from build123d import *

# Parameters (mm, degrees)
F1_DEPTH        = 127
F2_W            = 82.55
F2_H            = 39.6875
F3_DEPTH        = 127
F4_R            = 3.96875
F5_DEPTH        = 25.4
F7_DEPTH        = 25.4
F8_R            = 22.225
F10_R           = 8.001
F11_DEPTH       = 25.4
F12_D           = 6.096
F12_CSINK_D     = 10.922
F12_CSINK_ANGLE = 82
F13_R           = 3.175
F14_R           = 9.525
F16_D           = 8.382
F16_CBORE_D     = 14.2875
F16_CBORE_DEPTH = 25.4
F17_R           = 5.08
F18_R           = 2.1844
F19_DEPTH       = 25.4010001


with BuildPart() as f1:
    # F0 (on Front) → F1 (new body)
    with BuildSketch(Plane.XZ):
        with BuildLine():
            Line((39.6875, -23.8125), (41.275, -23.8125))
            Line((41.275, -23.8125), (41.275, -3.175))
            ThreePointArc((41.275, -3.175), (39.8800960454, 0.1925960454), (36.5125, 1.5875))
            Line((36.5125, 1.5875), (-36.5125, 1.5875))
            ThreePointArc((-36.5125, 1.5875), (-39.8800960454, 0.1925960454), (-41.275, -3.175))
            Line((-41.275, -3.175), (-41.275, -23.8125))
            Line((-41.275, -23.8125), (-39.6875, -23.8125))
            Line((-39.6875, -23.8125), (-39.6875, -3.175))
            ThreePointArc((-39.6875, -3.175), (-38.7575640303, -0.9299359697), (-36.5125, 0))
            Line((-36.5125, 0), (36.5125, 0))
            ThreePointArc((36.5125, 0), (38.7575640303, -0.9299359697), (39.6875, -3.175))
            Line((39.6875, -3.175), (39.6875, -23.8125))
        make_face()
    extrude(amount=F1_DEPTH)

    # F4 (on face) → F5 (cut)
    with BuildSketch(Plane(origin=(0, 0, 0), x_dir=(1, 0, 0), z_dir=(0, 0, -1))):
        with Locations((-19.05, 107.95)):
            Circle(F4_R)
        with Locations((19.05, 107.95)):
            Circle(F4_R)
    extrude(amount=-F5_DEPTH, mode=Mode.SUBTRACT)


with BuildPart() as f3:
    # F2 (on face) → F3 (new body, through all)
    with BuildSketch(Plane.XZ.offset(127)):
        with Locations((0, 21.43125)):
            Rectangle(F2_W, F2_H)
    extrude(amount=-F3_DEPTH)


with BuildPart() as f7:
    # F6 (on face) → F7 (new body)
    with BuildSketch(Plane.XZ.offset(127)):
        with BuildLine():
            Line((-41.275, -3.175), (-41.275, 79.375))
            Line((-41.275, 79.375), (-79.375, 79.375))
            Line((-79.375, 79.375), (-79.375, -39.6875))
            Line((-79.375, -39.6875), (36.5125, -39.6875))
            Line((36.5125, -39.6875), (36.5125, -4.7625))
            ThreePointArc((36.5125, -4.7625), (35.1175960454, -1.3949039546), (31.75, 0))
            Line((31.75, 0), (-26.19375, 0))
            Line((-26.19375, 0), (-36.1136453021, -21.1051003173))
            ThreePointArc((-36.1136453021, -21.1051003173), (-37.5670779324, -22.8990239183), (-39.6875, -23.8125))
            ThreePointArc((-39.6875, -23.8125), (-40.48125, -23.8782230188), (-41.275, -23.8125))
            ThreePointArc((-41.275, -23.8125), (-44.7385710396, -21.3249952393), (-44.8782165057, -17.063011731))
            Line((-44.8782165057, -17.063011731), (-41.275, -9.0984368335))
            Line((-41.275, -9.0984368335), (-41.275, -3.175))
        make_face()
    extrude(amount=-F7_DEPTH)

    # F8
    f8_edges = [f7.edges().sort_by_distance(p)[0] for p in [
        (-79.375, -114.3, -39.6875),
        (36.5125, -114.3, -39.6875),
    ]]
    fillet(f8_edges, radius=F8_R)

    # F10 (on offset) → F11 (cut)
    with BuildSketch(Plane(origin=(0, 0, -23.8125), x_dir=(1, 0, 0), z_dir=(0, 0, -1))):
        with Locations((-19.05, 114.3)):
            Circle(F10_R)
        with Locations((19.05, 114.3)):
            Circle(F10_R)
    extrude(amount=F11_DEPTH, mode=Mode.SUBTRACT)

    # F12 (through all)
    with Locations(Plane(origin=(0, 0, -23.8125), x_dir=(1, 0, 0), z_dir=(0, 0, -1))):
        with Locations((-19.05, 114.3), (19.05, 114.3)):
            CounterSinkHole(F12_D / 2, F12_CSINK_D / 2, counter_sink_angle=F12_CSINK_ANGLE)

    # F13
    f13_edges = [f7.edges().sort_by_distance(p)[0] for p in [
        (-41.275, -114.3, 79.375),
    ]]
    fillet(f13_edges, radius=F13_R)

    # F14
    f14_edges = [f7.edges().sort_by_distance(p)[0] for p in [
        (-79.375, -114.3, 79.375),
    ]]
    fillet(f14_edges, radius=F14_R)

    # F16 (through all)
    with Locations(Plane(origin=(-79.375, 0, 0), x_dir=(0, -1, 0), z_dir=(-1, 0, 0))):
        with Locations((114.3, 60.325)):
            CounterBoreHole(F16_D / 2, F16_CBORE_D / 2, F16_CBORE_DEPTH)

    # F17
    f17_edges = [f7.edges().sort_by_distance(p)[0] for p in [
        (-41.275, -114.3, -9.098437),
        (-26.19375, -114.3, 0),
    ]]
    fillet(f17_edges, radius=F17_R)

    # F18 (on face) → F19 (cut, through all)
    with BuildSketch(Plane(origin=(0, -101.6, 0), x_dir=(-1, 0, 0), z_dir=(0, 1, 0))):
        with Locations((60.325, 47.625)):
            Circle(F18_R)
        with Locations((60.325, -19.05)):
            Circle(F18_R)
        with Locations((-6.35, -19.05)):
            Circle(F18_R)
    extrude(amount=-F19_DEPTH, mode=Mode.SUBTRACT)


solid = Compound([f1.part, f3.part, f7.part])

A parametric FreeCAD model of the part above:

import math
import FreeCAD as App
import Part
import Sketcher
from FreeCAD import Vector
Q = App.Units.Quantity


def edges_at(feature, points):
    """Names of the edges that pass closest to the given points."""
    edges = feature.Shape.Edges
    near = lambda p: min(range(len(edges)), key=lambda i: edges[i].distToShape(Part.Vertex(*p))[0])
    return sorted({f"Edge{near(p) + 1}" for p in points})


def add_polygon(sketch, points):
    """Adds a closed chain of lines whose ends are joined by coincident constraints."""
    first, n = sketch.GeometryCount, len(points)
    for a, b in zip(points, points[1:] + points[:1]):
        sketch.addGeometry(Part.LineSegment(App.Vector(*a, 0), App.Vector(*b, 0)), False)
    for i in range(n):
        sketch.addConstraint(Sketcher.Constraint("Coincident", first + i, 2, first + (i + 1) % n, 1))

doc = App.newDocument("Part")
body = doc.addObject("PartDesign::Body", "Body")

# Sketch on XZ plane
sketch1 = doc.addObject("Sketcher::SketchObject", "Sketch")
body.addObject(sketch1)
sketch1.AttachmentSupport = (doc.XZ_Plane, [""])
sketch1.MapMode = "FlatFace"
sketch1.addGeometry([
    Part.LineSegment(Vector(39.7, -23.8, 0), Vector(41.3, -23.8, 0)),  # 0
    Part.LineSegment(Vector(41.3, -23.8, 0), Vector(41.3, -3.2, 0)),  # 1
    Part.ArcOfCircle(Part.Circle(Vector(36.5, -3.2, 0), Vector(0, 0, 1), 4.8), math.radians(0), math.radians(90)),  # 2
    Part.LineSegment(Vector(36.5, 1.6, 0), Vector(-36.5, 1.6, 0)),  # 3
    Part.ArcOfCircle(Part.Circle(Vector(-36.5, -3.2, 0), Vector(0, 0, 1), 4.8), math.radians(90), math.radians(180)),  # 4
    Part.LineSegment(Vector(-41.3, -3.2, 0), Vector(-41.3, -23.8, 0)),  # 5
    Part.LineSegment(Vector(-41.3, -23.8, 0), Vector(-39.7, -23.8, 0)),  # 6
    Part.LineSegment(Vector(-39.7, -23.8, 0), Vector(-39.7, -3.2, 0)),  # 7
    Part.ArcOfCircle(Part.Circle(Vector(-36.5, -3.2, 0), Vector(0, 0, 1), 3.2), math.radians(90), math.radians(180)),  # 8
    Part.LineSegment(Vector(-36.5, 0, 0), Vector(36.5, 0, 0)),  # 9
    Part.ArcOfCircle(Part.Circle(Vector(36.5, -3.2, 0), Vector(0, 0, 1), 3.2), math.radians(0), math.radians(90)),  # 10
    Part.LineSegment(Vector(39.7, -3.2, 0), Vector(39.7, -23.8, 0)),  # 11
], False)
sketch1.addConstraint([
    Sketcher.Constraint("Coincident", 0, 2, 1, 1),
    Sketcher.Constraint("Tangent", 1, 2, 2, 1),
    Sketcher.Constraint("Tangent", 2, 2, 3, 1),
    Sketcher.Constraint("Tangent", 3, 2, 4, 1),
    Sketcher.Constraint("Tangent", 4, 2, 5, 1),
    Sketcher.Constraint("Coincident", 5, 2, 6, 1),
    Sketcher.Constraint("Coincident", 6, 2, 7, 1),
    Sketcher.Constraint("Tangent", 7, 2, 8, 2),
    Sketcher.Constraint("Tangent", 8, 1, 9, 1),
    Sketcher.Constraint("Tangent", 9, 2, 10, 2),
    Sketcher.Constraint("Tangent", 10, 1, 11, 1),
    Sketcher.Constraint("Coincident", 11, 2, 0, 1),
    Sketcher.Constraint("Horizontal", 0),
    Sketcher.Constraint("Vertical", 1),
    Sketcher.Constraint("Horizontal", 3),
    Sketcher.Constraint("Vertical", 5),
    Sketcher.Constraint("Horizontal", 6),
    Sketcher.Constraint("Vertical", 7),
    Sketcher.Constraint("Horizontal", 9),
    Sketcher.Constraint("Vertical", 11),
    Sketcher.Constraint("Coincident", 8, 3, 4, 3),
    Sketcher.Constraint("Coincident", 10, 3, 2, 3),
    Sketcher.Constraint("Equal", 2, 4),
    Sketcher.Constraint("Symmetric", 8, 1, 9, 2, -1, 1),
    Sketcher.Constraint("Horizontal", 0, 2, 5, 2),
    Sketcher.Constraint("Radius", 2, Q("0.1875 in")),
    Sketcher.Constraint("Radius", 8, Q("0.125 in")),
    Sketcher.Constraint("DistanceY", 0, 2, 2, 2, Q("1 in")),
    Sketcher.Constraint("DistanceX", 3, 2, 3, 1, Q("2.875 in")),
])
pad1 = doc.addObject("PartDesign::Pad", "Pad")
body.addObject(pad1)
pad1.Profile = sketch1
pad1.Length = Q("5 in")

# Sketch on XY plane
sketch2 = doc.addObject("Sketcher::SketchObject", "Sketch001")
body.addObject(sketch2)
sketch2.AttachmentSupport = (doc.XY_Plane, [""])
sketch2.MapMode = "FlatFace"
sketch2.addGeometry([
    Part.Circle(Vector(-19.1, -108, 0), Vector(0, 0, 1), 4),
    Part.Circle(Vector(19.1, -108, 0), Vector(0, 0, 1), 4),
], False)
sketch2.addConstraint([
    Sketcher.Constraint("Equal", 0, 1),
    Sketcher.Constraint("Symmetric", 0, 3, 1, 3, -2),
    Sketcher.Constraint("Diameter", 0, Q("0.3125 in")),
    Sketcher.Constraint("DistanceX", 0, 3, 1, 3, Q("1.5 in")),
    Sketcher.Constraint("DistanceY", 0, 3, -1, 1, Q("4.25 in")),
])
pocket1 = doc.addObject("PartDesign::Pocket", "Pocket")
body.addObject(pocket1)
pocket1.Profile = sketch2
pocket1.Length = Q("1 in")
pocket1.Reversed = True
body2 = doc.addObject("PartDesign::Body", "Body001")

# Sketch on XZ plane
sketch3 = doc.addObject("Sketcher::SketchObject", "Sketch002")
body2.addObject(sketch3)
sketch3.AttachmentSupport = (doc.getObject("XZ_Plane001"), [""])
sketch3.MapMode = "FlatFace"
sketch3.AttachmentOffset = App.Placement(Vector(0, 0, 5 * 25.4), App.Rotation())
add_polygon(sketch3, [(-41, 41), (-41, 2), (41, 2), (41, 41)])  # lines 0-3
sketch3.addConstraint([
    Sketcher.Constraint("Vertical", 0),
    Sketcher.Constraint("Horizontal", 1),
    Sketcher.Constraint("Vertical", 2),
    Sketcher.Constraint("Horizontal", 3),
    Sketcher.Constraint("DistanceX", 1, 1, 1, 2, Q("3.25 in")),
    Sketcher.Constraint("DistanceY", 0, 2, 0, 1, Q("1.5625 in")),
    Sketcher.Constraint("DistanceX", 0, 2, -1, 1, Q("1.625 in")),
    Sketcher.Constraint("DistanceY", -1, 1, 0, 2, Q("0.0625 in")),
])
pad2 = doc.addObject("PartDesign::Pad", "Pad001")
body2.addObject(pad2)
pad2.Profile = sketch3
pad2.Length = Q("5 in")
pad2.Reversed = True
body3 = doc.addObject("PartDesign::Body", "Body002")

# Sketch on XZ plane
sketch4 = doc.addObject("Sketcher::SketchObject", "Sketch003")
body3.addObject(sketch4)
sketch4.AttachmentSupport = (doc.getObject("XZ_Plane002"), [""])
sketch4.MapMode = "FlatFace"
sketch4.AttachmentOffset = App.Placement(Vector(0, 0, 5 * 25.4), App.Rotation())
sketch4.addGeometry([
    Part.LineSegment(Vector(-41.3, 79.4, 0), Vector(-79.4, 79.4, 0)),  # 0
    Part.LineSegment(Vector(-79.4, 79.4, 0), Vector(-79.4, -39.7, 0)),  # 1
    Part.LineSegment(Vector(-79.4, -39.7, 0), Vector(36.5, -39.7, 0)),  # 2
    Part.LineSegment(Vector(36.5, -39.7, 0), Vector(36.5, -4.8, 0)),  # 3
    Part.ArcOfCircle(Part.Circle(Vector(31.8, -4.8, 0), Vector(0, 0, 1), 4.8), math.radians(0), math.radians(90)),  # 4
    Part.LineSegment(Vector(31.8, 0, 0), Vector(-26.2, 0, 0)),  # 5
    Part.LineSegment(Vector(-26.2, 0, 0), Vector(-36.1, -21.1, 0)),  # 6
    Part.ArcOfCircle(Part.Circle(Vector(-40.5, -19.1, 0), Vector(0, 0, 1), 4.8), math.radians(-81), math.radians(-25)),  # 7
    Part.ArcOfCircle(Part.Circle(Vector(-40.5, -19.1, 0), Vector(0, 0, 1), 4.8), math.radians(-99.47), math.radians(-80.53)),  # 8
    Part.ArcOfCircle(Part.Circle(Vector(-40.5, -19.1, 0), Vector(0, 0, 1), 4.8), math.radians(156), math.radians(261)),  # 9
    Part.LineSegment(Vector(-44.9, -17.1, 0), Vector(-41.3, -9.1, 0)),  # 10
    Part.LineSegment(Vector(-41.3, -9.1, 0), Vector(-41.3, 79.4, 0)),  # 11
], False)
sketch4.addConstraint([
    Sketcher.Constraint("Coincident", 0, 2, 1, 1),
    Sketcher.Constraint("Coincident", 1, 2, 2, 1),
    Sketcher.Constraint("Coincident", 2, 2, 3, 1),
    Sketcher.Constraint("Tangent", 3, 2, 4, 1),
    Sketcher.Constraint("Tangent", 4, 2, 5, 1),
    Sketcher.Constraint("Coincident", 5, 2, 6, 1),
    Sketcher.Constraint("Tangent", 6, 2, 7, 2),
    Sketcher.Constraint("Tangent", 7, 1, 8, 2),
    Sketcher.Constraint("Tangent", 8, 1, 9, 2),
    Sketcher.Constraint("Tangent", 9, 1, 10, 1),
    Sketcher.Constraint("Coincident", 10, 2, 11, 1),
    Sketcher.Constraint("Coincident", 11, 2, 0, 1),
    Sketcher.Constraint("Horizontal", 0),
    Sketcher.Constraint("Vertical", 1),
    Sketcher.Constraint("Horizontal", 2),
    Sketcher.Constraint("Vertical", 3),
    Sketcher.Constraint("Horizontal", 5),
    Sketcher.Constraint("Vertical", 11),
    Sketcher.Constraint("Coincident", 9, 3, 7, 3),
    Sketcher.Constraint("PointOnObject", 4, 2, -1),
    Sketcher.Constraint("Horizontal", 7, 1, 8, 1),
    Sketcher.Constraint("Vertical", 8, 1, 10, 2),
    Sketcher.Constraint("Radius", 7, Q("0.19 in")),
    Sketcher.Constraint("DistanceX", 0, 2, 0, 1, Q("1.5 in")),
    Sketcher.Constraint("Radius", 4, Q("0.1875 in")),
    Sketcher.Constraint("DistanceX", 2, 1, 2, 2, Q("4.5625 in")),
    Sketcher.Constraint("DistanceX", 5, 2, 5, 1, Q("2.28125 in")),
    Sketcher.Constraint("DistanceY", 1, 2, 1, 1, Q("4.6875 in")),
    Sketcher.Constraint("DistanceY", 3, 1, 3, 2, Q("1.375 in")),
    Sketcher.Constraint("DistanceX", -1, 1, 4, 3, Q("1.25 in")),
    Sketcher.Constraint("DistanceX", 7, 3, -1, 1, Q("1.59375 in")),
    Sketcher.Constraint("DistanceY", 7, 1, -1, 1, Q("0.9375 in")),
    Sketcher.Constraint("DistanceY", 11, 1, 11, 2, Q("88.473437 mm")),
])
pad3 = doc.addObject("PartDesign::Pad", "Pad002")
body3.addObject(pad3)
pad3.Profile = sketch4
pad3.Length = Q("1 in")
pad3.Reversed = True
doc.recompute()

fillet = doc.addObject("PartDesign::Fillet", "Fillet")
body3.addObject(fillet)
fillet.Base = (pad3, edges_at(pad3, [(-79.375, -114.3, -39.688), (36.513, -114.3, -39.688)]))
fillet.Radius = Q("0.875 in")

# Sketch on XY plane
sketch5 = doc.addObject("Sketcher::SketchObject", "Sketch004")
body3.addObject(sketch5)
sketch5.AttachmentSupport = (doc.getObject("XY_Plane002"), [""])
sketch5.MapMode = "FlatFace"
sketch5.AttachmentOffset = App.Placement(Vector(0, 0, -0.9375 * 25.4), App.Rotation())
sketch5.addGeometry([
    Part.Circle(Vector(-19, -114, 0), Vector(0, 0, 1), 8),
    Part.Circle(Vector(19, -114, 0), Vector(0, 0, 1), 8),
], False)
sketch5.addConstraint([
    Sketcher.Constraint("Equal", 0, 1),
    Sketcher.Constraint("Symmetric", 0, 3, 1, 3, -2),
    Sketcher.Constraint("Diameter", 0, Q("0.63 in")),
    Sketcher.Constraint("DistanceY", 0, 3, -1, 1, Q("4.5 in")),
    Sketcher.Constraint("DistanceX", 0, 3, 1, 3, Q("1.5 in")),
])
pocket2 = doc.addObject("PartDesign::Pocket", "Pocket001")
body3.addObject(pocket2)
pocket2.Profile = sketch5
pocket2.Length = Q("1 in")

# Sketch on XY plane
sketch6 = doc.addObject("Sketcher::SketchObject", "Sketch005")
body3.addObject(sketch6)
sketch6.AttachmentSupport = (doc.getObject("XY_Plane002"), [""])
sketch6.MapMode = "FlatFace"
sketch6.AttachmentOffset = App.Placement(Vector(0, 0, -0.9375 * 25.4), App.Rotation())
sketch6.addGeometry([
    Part.Circle(Vector(-19.1, -114.3, 0), Vector(0, 0, 1), 3),
    Part.Circle(Vector(19.1, -114.3, 0), Vector(0, 0, 1), 3),
], False)
sketch6.addConstraint([
    Sketcher.Constraint("Equal", 0, 1),
    Sketcher.Constraint("Symmetric", 0, 3, 1, 3, -2),
    Sketcher.Constraint("Diameter", 0, Q("0.24 in")),
    Sketcher.Constraint("DistanceY", 0, 3, -1, 1, Q("4.5 in")),
    Sketcher.Constraint("DistanceX", 0, 3, 1, 3, Q("1.5 in")),
])
doc.recompute()
hole = doc.addObject("PartDesign::Hole", "Hole")
body3.addObject(hole)
hole.Profile = sketch6
hole.ThreadType = "None"
hole.Diameter = Q("0.24 in")
hole.DepthType = "ThroughAll"
hole.HoleCutType = "Countersink"
hole.HoleCutDiameter = Q("0.43 in")
hole.HoleCutCountersinkAngle = 82
hole.Reversed = True
doc.recompute()

fillet2 = doc.addObject("PartDesign::Fillet", "Fillet001")
body3.addObject(fillet2)
fillet2.Base = (hole, edges_at(hole, [(-41.275, -114.3, 79.375)]))
fillet2.Radius = Q("0.125 in")
doc.recompute()

fillet3 = doc.addObject("PartDesign::Fillet", "Fillet002")
body3.addObject(fillet3)
fillet3.Base = (fillet2, edges_at(fillet2, [(-79.375, -114.3, 79.375)]))
fillet3.Radius = Q("0.375 in")

# Sketch on YZ plane
sketch7 = doc.addObject("Sketcher::SketchObject", "Sketch006")
body3.addObject(sketch7)
sketch7.AttachmentSupport = (doc.getObject("YZ_Plane002"), [""])
sketch7.MapMode = "FlatFace"
sketch7.AttachmentOffset = App.Placement(Vector(0, 0, -3.125 * 25.4), App.Rotation())
sketch7.addGeometry(Part.Circle(Vector(-114.3, 60.3, 0), Vector(0, 0, 1), 4.2), False)
sketch7.addConstraint([
    Sketcher.Constraint("Diameter", 0, Q("0.33 in")),
    Sketcher.Constraint("DistanceX", 0, 3, -1, 1, Q("4.5 in")),
    Sketcher.Constraint("DistanceY", -1, 1, 0, 3, Q("2.375 in")),
])
doc.recompute()
hole2 = doc.addObject("PartDesign::Hole", "Hole001")
body3.addObject(hole2)
hole2.Profile = sketch7
hole2.ThreadType = "None"
hole2.Diameter = Q("0.33 in")
hole2.DepthType = "ThroughAll"
hole2.HoleCutType = "Counterbore"
hole2.HoleCutDiameter = Q("0.5625 in")
hole2.HoleCutDepth = Q("1 in")
hole2.Reversed = True
doc.recompute()

fillet4 = doc.addObject("PartDesign::Fillet", "Fillet003")
body3.addObject(fillet4)
fillet4.Base = (hole2, edges_at(hole2, [(-41.275, -114.3, -9.098), (-26.194, -114.3, 0)]))
fillet4.Radius = Q("0.2 in")

# Sketch on XZ plane
sketch8 = doc.addObject("Sketcher::SketchObject", "Sketch007")
body3.addObject(sketch8)
sketch8.AttachmentSupport = (doc.getObject("XZ_Plane002"), [""])
sketch8.MapMode = "FlatFace"
sketch8.AttachmentOffset = App.Placement(Vector(0, 0, 4 * 25.4), App.Rotation())
sketch8.addGeometry([
    Part.Circle(Vector(-60.3, 47.6, 0), Vector(0, 0, 1), 2.2),
    Part.Circle(Vector(-60.3, -19.1, 0), Vector(0, 0, 1), 2.2),
    Part.Circle(Vector(6.3, -19.1, 0), Vector(0, 0, 1), 2.2),
], False)
sketch8.addConstraint([
    Sketcher.Constraint("Equal", 0, 1),
    Sketcher.Constraint("Equal", 1, 2),
    Sketcher.Constraint("Horizontal", 1, 3, 2, 3),
    Sketcher.Constraint("Vertical", 0, 3, 1, 3),
    Sketcher.Constraint("Diameter", 0, Q("0.172 in")),
    Sketcher.Constraint("DistanceY", 1, 3, -1, 1, Q("0.75 in")),
    Sketcher.Constraint("DistanceX", -1, 1, 2, 3, Q("0.25 in")),
    Sketcher.Constraint("DistanceX", 0, 3, -1, 1, Q("2.375 in")),
    Sketcher.Constraint("DistanceY", -1, 1, 0, 3, Q("1.875 in")),
])
pocket3 = doc.addObject("PartDesign::Pocket", "Pocket002")
body3.addObject(pocket3)
pocket3.Profile = sketch8
pocket3.Type = "ThroughAll"
pocket3.Reversed = True

doc.recompute()
